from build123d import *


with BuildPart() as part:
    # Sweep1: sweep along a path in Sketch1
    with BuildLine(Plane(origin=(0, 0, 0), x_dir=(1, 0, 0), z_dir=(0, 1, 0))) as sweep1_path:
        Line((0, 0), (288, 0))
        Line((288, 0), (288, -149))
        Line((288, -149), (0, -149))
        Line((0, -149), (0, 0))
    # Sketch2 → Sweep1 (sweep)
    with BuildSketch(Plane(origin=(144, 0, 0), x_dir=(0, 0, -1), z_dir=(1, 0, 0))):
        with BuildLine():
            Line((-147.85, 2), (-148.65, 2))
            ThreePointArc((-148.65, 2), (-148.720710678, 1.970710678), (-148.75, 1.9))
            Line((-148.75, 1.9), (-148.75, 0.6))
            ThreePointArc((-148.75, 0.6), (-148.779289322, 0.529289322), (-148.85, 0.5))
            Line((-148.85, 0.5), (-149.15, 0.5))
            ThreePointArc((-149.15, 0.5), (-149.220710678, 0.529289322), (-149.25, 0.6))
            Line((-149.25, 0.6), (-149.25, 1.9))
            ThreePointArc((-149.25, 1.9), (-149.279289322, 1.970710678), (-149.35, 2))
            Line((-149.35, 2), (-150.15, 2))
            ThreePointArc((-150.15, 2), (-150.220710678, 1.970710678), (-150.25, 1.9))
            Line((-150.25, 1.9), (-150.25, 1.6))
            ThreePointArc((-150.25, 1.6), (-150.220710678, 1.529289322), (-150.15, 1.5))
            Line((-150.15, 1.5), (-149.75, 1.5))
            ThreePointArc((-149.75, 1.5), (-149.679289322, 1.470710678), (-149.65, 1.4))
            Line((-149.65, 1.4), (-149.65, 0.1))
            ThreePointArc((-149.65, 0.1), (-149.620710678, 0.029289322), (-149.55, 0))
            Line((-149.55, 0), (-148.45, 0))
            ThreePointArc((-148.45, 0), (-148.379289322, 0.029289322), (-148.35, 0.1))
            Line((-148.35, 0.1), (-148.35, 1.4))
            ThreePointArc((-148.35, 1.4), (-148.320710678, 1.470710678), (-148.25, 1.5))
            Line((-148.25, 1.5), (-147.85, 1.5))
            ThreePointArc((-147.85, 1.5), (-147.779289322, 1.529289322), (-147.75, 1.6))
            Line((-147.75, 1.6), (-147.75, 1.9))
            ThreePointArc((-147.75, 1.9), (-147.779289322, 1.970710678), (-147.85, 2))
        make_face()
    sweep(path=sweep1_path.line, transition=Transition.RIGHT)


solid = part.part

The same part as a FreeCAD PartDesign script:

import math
import FreeCAD as App
import Part
import Sketcher
from FreeCAD import Vector

doc = App.newDocument("Part")
body = doc.addObject("PartDesign::Body", "Body")

# Sketch on YZ plane
sketch1 = body.newObject("Sketcher::SketchObject", "Sketch")
sketch1.AttachmentSupport = (doc.getObject("YZ_Plane"), [""])
sketch1.MapMode = "FlatFace"
sketch1.AttachmentOffset = App.Placement(Vector(0, 0, 144), App.Rotation())
sketch1.addGeometry([
    Part.LineSegment(Vector(2, 147.85, 0), Vector(2, 148.65, 0)),  # 0
    Part.ArcOfCircle(Part.Circle(Vector(1.9, 148.65, 0), Vector(0, 0, 1), 0.1), math.radians(0), math.radians(90)),  # 1
    Part.LineSegment(Vector(1.9, 148.75, 0), Vector(0.6, 148.75, 0)),  # 2
    Part.ArcOfCircle(Part.Circle(Vector(0.6, 148.85, 0), Vector(0, 0, 1), 0.1), math.radians(180), math.radians(270)),  # 3
    Part.LineSegment(Vector(0.5, 148.85, 0), Vector(0.5, 149.15, 0)),  # 4
    Part.ArcOfCircle(Part.Circle(Vector(0.6, 149.15, 0), Vector(0, 0, 1), 0.1), math.radians(90), math.radians(180)),  # 5
    Part.LineSegment(Vector(0.6, 149.25, 0), Vector(1.9, 149.25, 0)),  # 6
    Part.ArcOfCircle(Part.Circle(Vector(1.9, 149.35, 0), Vector(0, 0, 1), 0.1), math.radians(-90), math.radians(0)),  # 7
    Part.LineSegment(Vector(2, 149.35, 0), Vector(2, 150.15, 0)),  # 8
    Part.ArcOfCircle(Part.Circle(Vector(1.9, 150.15, 0), Vector(0, 0, 1), 0.1), math.radians(0), math.radians(90)),  # 9
    Part.LineSegment(Vector(1.9, 150.25, 0), Vector(1.6, 150.25, 0)),  # 10
    Part.ArcOfCircle(Part.Circle(Vector(1.6, 150.15, 0), Vector(0, 0, 1), 0.1), math.radians(90), math.radians(180)),  # 11
    Part.LineSegment(Vector(1.5, 150.15, 0), Vector(1.5, 149.75, 0)),  # 12
    Part.ArcOfCircle(Part.Circle(Vector(1.4, 149.75, 0), Vector(0, 0, 1), 0.1), math.radians(-90), math.radians(0)),  # 13
    Part.LineSegment(Vector(1.4, 149.65, 0), Vector(0.1, 149.65, 0)),  # 14
    Part.ArcOfCircle(Part.Circle(Vector(0.1, 149.55, 0), Vector(0, 0, 1), 0.1), math.radians(90), math.radians(180)),  # 15
    Part.LineSegment(Vector(0, 149.55, 0), Vector(0, 148.45, 0)),  # 16
    Part.ArcOfCircle(Part.Circle(Vector(0.1, 148.45, 0), Vector(0, 0, 1), 0.1), math.radians(180), math.radians(270)),  # 17
    Part.LineSegment(Vector(0.1, 148.35, 0), Vector(1.4, 148.35, 0)),  # 18
    Part.ArcOfCircle(Part.Circle(Vector(1.4, 148.25, 0), Vector(0, 0, 1), 0.1), math.radians(0), math.radians(90)),  # 19
    Part.LineSegment(Vector(1.5, 148.25, 0), Vector(1.5, 147.85, 0)),  # 20
    Part.ArcOfCircle(Part.Circle(Vector(1.6, 147.85, 0), Vector(0, 0, 1), 0.1), math.radians(180), math.radians(270)),  # 21
    Part.LineSegment(Vector(1.6, 147.75, 0), Vector(1.9, 147.75, 0)),  # 22
    Part.ArcOfCircle(Part.Circle(Vector(1.9, 147.85, 0), Vector(0, 0, 1), 0.1), math.radians(-90), math.radians(0)),  # 23
], False)
sketch1.addConstraint([
    Sketcher.Constraint("Tangent", 0, 2, 1, 1),
    Sketcher.Constraint("Tangent", 1, 2, 2, 1),
    Sketcher.Constraint("Tangent", 2, 2, 3, 2),
    Sketcher.Constraint("Tangent", 3, 1, 4, 1),
    Sketcher.Constraint("Tangent", 4, 2, 5, 2),
    Sketcher.Constraint("Tangent", 5, 1, 6, 1),
    Sketcher.Constraint("Tangent", 6, 2, 7, 1),
    Sketcher.Constraint("Tangent", 7, 2, 8, 1),
    Sketcher.Constraint("Tangent", 8, 2, 9, 1),
    Sketcher.Constraint("Tangent", 9, 2, 10, 1),
    Sketcher.Constraint("Tangent", 10, 2, 11, 1),
    Sketcher.Constraint("Tangent", 11, 2, 12, 1),
    Sketcher.Constraint("Tangent", 12, 2, 13, 2),
    Sketcher.Constraint("Tangent", 13, 1, 14, 1),
    Sketcher.Constraint("Tangent", 14, 2, 15, 1),
    Sketcher.Constraint("Tangent", 15, 2, 16, 1),
    Sketcher.Constraint("Tangent", 16, 2, 17, 1),
    Sketcher.Constraint("Tangent", 17, 2, 18, 1),
    Sketcher.Constraint("Tangent", 18, 2, 19, 2),
    Sketcher.Constraint("Tangent", 19, 1, 20, 1),
    Sketcher.Constraint("Tangent", 20, 2, 21, 1),
    Sketcher.Constraint("Tangent", 21, 2, 22, 1),
    Sketcher.Constraint("Tangent", 22, 2, 23, 1),
    Sketcher.Constraint("Tangent", 23, 2, 0, 1),
    Sketcher.Constraint("Vertical", 0),
    Sketcher.Constraint("Horizontal", 2),
    Sketcher.Constraint("Vertical", 4),
    Sketcher.Constraint("Horizontal", 6),
    Sketcher.Constraint("Vertical", 8),
    Sketcher.Constraint("Horizontal", 10),
    Sketcher.Constraint("Vertical", 12),
    Sketcher.Constraint("Horizontal", 14),
    Sketcher.Constraint("Vertical", 16),
    Sketcher.Constraint("Horizontal", 18),
    Sketcher.Constraint("Vertical", 20),
    Sketcher.Constraint("Horizontal", 22),
    Sketcher.Constraint("Equal", 1, 3),
    Sketcher.Constraint("Equal", 3, 5),
    Sketcher.Constraint("Equal", 5, 7),
    Sketcher.Constraint("Equal", 7, 9),
    Sketcher.Constraint("Equal", 9, 11),
    Sketcher.Constraint("Equal", 11, 13),
    Sketcher.Constraint("Equal", 13, 15),
    Sketcher.Constraint("Equal", 15, 17),
    Sketcher.Constraint("Equal", 17, 19),
    Sketcher.Constraint("Equal", 19, 21),
    Sketcher.Constraint("Equal", 21, 23),
    Sketcher.Constraint("PointOnObject", 15, 2, -2),
    Sketcher.Constraint("Vertical", 1, 3, 7, 3),
    Sketcher.Constraint("Vertical", 13, 3, 19, 3),
    Sketcher.Constraint("Equal", 6, 14),
    Sketcher.Constraint("Equal", 22, 4),
    Sketcher.Constraint("Equal", 0, 8),
    Sketcher.Constraint("Equal", 12, 20),
    Sketcher.Constraint("Radius", 1, 0.1),
    Sketcher.Constraint("DistanceX", 2, 2, 2, 1, 1.3),
    Sketcher.Constraint("DistanceX", 10, 2, 10, 1, 0.3),
    Sketcher.Constraint("DistanceY", 0, 1, 0, 2, 0.8),
    Sketcher.Constraint("DistanceY", 12, 2, 12, 1, 0.4),
    Sketcher.Constraint("DistanceY", -1, 1, 1, 3, 148.65),
])

# Sketch on XZ plane
sketch2 = body.newObject("Sketcher::SketchObject", "Sketch001")
sketch2.AttachmentSupport = (doc.getObject("XZ_Plane"), [""])
sketch2.MapMode = "FlatFace"
sketch2.addGeometry([
    Part.LineSegment(Vector(0, 0, 0), Vector(288, 0, 0)),
    Part.LineSegment(Vector(288, 0, 0), Vector(288, 149, 0)),
    Part.LineSegment(Vector(288, 149, 0), Vector(0, 149, 0)),
    Part.LineSegment(Vector(0, 149, 0), Vector(0, 0, 0)),
], False)
sketch2.addConstraint([
    Sketcher.Constraint("Coincident", 0, 2, 1, 1),
    Sketcher.Constraint("Coincident", 1, 2, 2, 1),
    Sketcher.Constraint("Coincident", 2, 2, 3, 1),
    Sketcher.Constraint("Coincident", 3, 2, 0, 1),
    Sketcher.Constraint("Horizontal", 0),
    Sketcher.Constraint("Vertical", 1),
    Sketcher.Constraint("Horizontal", 2),
    Sketcher.Constraint("Vertical", 3),
    Sketcher.Constraint("Coincident", 3, 2, -1, 1),
    Sketcher.Constraint("DistanceX", 0, 1, 0, 2, 288.0),
    Sketcher.Constraint("DistanceY", 1, 1, 1, 2, 149.0),
])
doc.recompute()

additivepipe = body.newObject("PartDesign::AdditivePipe", "AdditivePipe")
additivepipe.Profile = sketch1
additivepipe.Spine = (sketch2, ["Edge1", "Edge2", "Edge3", "Edge4"])
additivepipe.Transition = "Right corner"

doc.recompute()
